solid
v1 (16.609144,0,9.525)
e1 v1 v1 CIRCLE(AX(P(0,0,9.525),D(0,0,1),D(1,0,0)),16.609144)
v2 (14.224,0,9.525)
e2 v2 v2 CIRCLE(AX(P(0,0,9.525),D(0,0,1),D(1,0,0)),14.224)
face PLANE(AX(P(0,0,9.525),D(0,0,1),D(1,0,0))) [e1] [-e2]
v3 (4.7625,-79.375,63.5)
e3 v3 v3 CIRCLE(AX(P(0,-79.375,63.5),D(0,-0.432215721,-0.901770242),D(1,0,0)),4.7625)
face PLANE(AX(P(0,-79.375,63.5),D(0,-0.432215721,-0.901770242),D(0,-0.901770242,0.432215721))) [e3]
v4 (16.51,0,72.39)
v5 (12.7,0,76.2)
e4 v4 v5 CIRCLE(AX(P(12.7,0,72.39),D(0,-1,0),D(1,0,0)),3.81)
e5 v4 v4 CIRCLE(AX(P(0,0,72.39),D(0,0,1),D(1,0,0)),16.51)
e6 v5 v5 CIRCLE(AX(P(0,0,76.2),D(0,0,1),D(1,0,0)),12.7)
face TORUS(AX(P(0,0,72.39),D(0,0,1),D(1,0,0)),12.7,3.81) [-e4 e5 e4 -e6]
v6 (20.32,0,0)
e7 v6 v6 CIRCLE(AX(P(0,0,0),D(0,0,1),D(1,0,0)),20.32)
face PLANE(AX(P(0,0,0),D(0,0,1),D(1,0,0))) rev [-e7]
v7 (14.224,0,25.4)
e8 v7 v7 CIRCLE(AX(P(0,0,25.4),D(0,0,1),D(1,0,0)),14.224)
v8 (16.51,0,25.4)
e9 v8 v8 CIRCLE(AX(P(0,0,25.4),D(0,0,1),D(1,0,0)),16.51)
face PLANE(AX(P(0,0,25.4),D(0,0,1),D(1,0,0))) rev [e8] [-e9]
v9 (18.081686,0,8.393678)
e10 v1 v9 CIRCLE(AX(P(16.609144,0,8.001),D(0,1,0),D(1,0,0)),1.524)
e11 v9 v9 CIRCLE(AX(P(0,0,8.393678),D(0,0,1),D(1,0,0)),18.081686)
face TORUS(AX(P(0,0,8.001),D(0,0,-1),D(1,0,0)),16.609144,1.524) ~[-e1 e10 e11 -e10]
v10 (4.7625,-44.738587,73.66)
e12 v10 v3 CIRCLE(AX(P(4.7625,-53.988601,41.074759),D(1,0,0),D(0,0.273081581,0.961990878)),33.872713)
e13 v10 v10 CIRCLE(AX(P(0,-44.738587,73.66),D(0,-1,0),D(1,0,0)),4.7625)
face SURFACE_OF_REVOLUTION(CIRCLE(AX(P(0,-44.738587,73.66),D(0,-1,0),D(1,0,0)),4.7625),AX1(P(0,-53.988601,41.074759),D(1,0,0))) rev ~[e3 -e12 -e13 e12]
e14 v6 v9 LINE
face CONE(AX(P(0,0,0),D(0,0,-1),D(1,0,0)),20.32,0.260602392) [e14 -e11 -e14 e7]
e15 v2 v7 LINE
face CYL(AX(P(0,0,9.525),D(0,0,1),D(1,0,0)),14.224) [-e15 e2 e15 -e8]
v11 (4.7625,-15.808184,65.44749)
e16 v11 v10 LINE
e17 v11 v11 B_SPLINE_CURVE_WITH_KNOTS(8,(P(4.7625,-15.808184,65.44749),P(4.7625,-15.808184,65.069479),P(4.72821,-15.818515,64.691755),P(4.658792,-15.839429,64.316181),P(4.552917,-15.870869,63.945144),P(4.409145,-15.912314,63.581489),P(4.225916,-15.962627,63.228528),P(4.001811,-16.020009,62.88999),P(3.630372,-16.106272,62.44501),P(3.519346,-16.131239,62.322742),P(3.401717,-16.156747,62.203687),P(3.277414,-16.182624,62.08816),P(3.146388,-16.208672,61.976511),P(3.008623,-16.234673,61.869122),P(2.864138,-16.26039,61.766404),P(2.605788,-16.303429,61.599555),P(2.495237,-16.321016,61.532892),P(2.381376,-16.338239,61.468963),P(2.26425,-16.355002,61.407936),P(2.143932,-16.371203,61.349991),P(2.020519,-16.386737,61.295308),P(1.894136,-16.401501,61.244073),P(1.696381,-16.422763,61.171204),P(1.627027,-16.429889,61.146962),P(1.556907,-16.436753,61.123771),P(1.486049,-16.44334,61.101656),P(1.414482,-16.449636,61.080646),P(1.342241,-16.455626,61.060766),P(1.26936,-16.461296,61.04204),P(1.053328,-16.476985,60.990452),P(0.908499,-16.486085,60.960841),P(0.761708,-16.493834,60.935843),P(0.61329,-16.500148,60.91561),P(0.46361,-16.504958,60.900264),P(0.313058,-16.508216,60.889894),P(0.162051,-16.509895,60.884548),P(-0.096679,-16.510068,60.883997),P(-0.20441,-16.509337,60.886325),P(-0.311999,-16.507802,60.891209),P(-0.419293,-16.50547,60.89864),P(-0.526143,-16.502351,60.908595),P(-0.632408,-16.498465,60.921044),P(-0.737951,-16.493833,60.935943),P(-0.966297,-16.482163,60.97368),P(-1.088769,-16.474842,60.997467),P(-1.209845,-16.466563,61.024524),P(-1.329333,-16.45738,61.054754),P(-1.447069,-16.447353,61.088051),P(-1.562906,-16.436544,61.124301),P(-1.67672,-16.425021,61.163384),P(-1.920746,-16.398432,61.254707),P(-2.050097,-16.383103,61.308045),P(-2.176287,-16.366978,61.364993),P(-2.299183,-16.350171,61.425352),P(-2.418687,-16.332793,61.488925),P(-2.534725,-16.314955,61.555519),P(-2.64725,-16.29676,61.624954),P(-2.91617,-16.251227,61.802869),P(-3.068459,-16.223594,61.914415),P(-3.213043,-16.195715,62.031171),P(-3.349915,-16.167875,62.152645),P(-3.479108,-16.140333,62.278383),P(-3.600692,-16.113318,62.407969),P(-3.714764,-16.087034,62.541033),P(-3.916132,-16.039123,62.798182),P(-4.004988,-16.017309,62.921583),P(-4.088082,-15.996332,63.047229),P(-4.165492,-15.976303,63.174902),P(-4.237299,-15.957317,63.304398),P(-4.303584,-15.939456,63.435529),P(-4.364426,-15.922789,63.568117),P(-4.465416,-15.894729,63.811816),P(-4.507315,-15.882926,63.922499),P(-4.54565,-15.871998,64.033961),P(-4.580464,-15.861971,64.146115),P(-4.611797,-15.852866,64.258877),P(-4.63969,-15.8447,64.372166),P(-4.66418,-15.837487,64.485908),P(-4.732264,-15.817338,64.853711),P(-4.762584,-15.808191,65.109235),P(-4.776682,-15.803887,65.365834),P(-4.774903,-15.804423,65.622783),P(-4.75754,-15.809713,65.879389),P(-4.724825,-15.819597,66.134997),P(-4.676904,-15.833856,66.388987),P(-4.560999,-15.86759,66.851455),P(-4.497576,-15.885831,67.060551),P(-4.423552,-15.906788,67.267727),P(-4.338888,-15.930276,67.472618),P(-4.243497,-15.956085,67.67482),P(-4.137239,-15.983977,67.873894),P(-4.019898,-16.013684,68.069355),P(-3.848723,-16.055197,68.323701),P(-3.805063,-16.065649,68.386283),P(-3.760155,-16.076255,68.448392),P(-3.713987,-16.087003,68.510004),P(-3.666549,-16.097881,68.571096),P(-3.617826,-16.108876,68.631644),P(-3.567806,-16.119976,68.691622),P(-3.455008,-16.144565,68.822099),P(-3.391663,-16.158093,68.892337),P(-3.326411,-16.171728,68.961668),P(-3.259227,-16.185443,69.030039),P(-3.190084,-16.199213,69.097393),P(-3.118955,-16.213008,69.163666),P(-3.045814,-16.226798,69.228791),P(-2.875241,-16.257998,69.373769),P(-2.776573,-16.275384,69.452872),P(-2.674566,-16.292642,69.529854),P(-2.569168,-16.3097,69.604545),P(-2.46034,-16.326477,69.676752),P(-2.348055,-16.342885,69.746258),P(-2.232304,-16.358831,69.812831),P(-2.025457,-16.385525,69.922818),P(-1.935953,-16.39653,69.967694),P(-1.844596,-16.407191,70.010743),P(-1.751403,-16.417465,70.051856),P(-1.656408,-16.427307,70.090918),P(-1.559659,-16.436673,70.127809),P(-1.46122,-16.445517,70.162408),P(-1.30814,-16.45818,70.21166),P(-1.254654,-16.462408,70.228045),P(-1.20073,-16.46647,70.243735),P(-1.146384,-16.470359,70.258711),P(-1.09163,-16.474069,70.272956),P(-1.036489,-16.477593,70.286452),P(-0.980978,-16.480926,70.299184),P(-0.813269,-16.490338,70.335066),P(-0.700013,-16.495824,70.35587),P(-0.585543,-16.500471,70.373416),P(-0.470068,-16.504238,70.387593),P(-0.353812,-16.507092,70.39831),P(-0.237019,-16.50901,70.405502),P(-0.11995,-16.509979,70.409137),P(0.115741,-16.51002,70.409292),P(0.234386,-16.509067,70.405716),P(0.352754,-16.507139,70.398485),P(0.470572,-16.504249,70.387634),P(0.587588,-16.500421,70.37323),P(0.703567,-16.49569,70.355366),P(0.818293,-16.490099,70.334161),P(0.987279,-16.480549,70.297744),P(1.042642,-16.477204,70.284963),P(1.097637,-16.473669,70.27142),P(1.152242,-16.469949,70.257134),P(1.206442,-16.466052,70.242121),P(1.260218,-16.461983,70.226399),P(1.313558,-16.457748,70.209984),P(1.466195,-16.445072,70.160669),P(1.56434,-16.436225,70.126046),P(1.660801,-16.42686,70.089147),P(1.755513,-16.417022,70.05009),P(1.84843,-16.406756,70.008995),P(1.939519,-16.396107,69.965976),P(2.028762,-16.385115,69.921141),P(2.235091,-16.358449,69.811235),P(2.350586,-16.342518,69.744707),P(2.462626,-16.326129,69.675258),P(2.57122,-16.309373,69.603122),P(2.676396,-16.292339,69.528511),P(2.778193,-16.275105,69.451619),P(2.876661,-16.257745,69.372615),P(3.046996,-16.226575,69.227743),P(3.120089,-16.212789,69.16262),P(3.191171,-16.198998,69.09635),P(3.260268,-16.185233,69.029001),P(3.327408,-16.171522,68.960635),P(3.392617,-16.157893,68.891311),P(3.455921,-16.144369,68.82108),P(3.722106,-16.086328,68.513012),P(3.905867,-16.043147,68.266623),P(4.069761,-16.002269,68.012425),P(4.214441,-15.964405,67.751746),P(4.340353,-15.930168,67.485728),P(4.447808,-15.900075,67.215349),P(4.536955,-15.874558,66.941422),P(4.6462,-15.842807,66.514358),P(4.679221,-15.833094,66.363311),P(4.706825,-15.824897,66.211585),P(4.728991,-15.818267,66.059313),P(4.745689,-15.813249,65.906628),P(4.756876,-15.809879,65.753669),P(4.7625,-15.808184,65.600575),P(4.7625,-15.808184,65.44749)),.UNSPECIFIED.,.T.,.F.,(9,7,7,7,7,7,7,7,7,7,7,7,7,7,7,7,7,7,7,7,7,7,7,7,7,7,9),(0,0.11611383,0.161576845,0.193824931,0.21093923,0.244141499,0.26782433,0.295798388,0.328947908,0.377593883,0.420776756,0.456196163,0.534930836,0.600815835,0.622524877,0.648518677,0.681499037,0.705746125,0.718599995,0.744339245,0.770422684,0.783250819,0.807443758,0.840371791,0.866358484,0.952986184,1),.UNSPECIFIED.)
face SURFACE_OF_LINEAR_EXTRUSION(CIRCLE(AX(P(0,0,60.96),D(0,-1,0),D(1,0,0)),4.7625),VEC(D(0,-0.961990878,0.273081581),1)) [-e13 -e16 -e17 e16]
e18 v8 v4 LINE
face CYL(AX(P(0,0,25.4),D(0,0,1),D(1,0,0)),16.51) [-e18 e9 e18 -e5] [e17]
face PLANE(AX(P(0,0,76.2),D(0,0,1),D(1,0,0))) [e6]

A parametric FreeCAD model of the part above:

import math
import FreeCAD as App
import Part
import Sketcher

V = App.Vector
Q = App.Units.Quantity


def edges_at(feature, points):
    """Names of the edges that pass closest to the given points."""
    edges = feature.Shape.Edges
    near = lambda p: min(range(len(edges)), key=lambda i: edges[i].distToShape(Part.Vertex(*p))[0])
    return sorted({f"Edge{near(p) + 1}" for p in points})

doc = App.newDocument("Part")
params = doc.addObject("Spreadsheet::Sheet", "Params")
for row, (alias, value) in enumerate([
    ("sketch1_height", "3 in"),
    ("sketch1_height2", "2 in"),
    ("sketch1_width", "0.8 in"),
    ("sketch1_width2", "0.14 in"),
    ("sketch1_width3", "0.09 in"),
    ("revolution_angle", "360 deg"),
    ("fillet_radius", "0.15 in"),
    ("fillet2_radius", "0.06 in"),
    ("sketch2_diameter", "0.375 in"),
], start=1):
    params.set(f"A{row}", alias)
    params.set(f"B{row}", "=" + value)
    params.setAlias(f"B{row}", alias)

body = doc.addObject("PartDesign::Body", "Body")

sketch1 = doc.addObject("Sketcher::SketchObject", "Sketch")
body.addObject(sketch1)
sketch1.AttachmentSupport = (doc.XZ_Plane, [""])
sketch1.MapMode = "FlatFace"
sketch1.addGeometry(Part.LineSegment(V(0, 76.2, 0), V(0, 0, 0)), False)
sketch1.addGeometry(Part.LineSegment(V(0, 0, 0), V(20.3, 0, 0)), False)
sketch1.addGeometry(Part.LineSegment(V(20.3, 0, 0), V(17.8, 9.5, 0)), False)
sketch1.addGeometry(Part.LineSegment(V(17.8, 9.5, 0), V(14.2, 9.5, 0)), False)
sketch1.addGeometry(Part.LineSegment(V(14.2, 9.5, 0), V(14.2, 25.4, 0)), False)
sketch1.addGeometry(Part.LineSegment(V(14.2, 25.4, 0), V(16.5, 25.4, 0)), False)
sketch1.addGeometry(Part.LineSegment(V(16.5, 25.4, 0), V(16.5, 76.2, 0)), False)
sketch1.addGeometry(Part.LineSegment(V(16.5, 76.2, 0), V(0, 76.2, 0)), False)
sketch1.addConstraint(Sketcher.Constraint("Coincident", 0, 2, 1, 1))
sketch1.addConstraint(Sketcher.Constraint("Coincident", 1, 2, 2, 1))
sketch1.addConstraint(Sketcher.Constraint("Coincident", 2, 2, 3, 1))
sketch1.addConstraint(Sketcher.Constraint("Coincident", 3, 2, 4, 1))
sketch1.addConstraint(Sketcher.Constraint("Coincident", 4, 2, 5, 1))
sketch1.addConstraint(Sketcher.Constraint("Coincident", 5, 2, 6, 1))
sketch1.addConstraint(Sketcher.Constraint("Coincident", 6, 2, 7, 1))
sketch1.addConstraint(Sketcher.Constraint("Coincident", 7, 2, 0, 1))
sketch1.addConstraint(Sketcher.Constraint("Vertical", 0))
sketch1.addConstraint(Sketcher.Constraint("Horizontal", 1))
sketch1.addConstraint(Sketcher.Constraint("Horizontal", 3))
sketch1.addConstraint(Sketcher.Constraint("Vertical", 4))
sketch1.addConstraint(Sketcher.Constraint("Horizontal", 5))
sketch1.addConstraint(Sketcher.Constraint("Vertical", 6))
sketch1.addConstraint(Sketcher.Constraint("Horizontal", 7))
sketch1.addConstraint(Sketcher.Constraint("Coincident", 0, 2, -1, 1))
sketch1.addConstraint(Sketcher.Constraint("DistanceY", 0, 2, 0, 1, Q("3 in")))
sketch1.addConstraint(Sketcher.Constraint("DistanceY", 6, 1, 6, 2, Q("2 in")))
sketch1.addConstraint(Sketcher.Constraint("DistanceX", 1, 1, 1, 2, Q("0.8 in")))
sketch1.addConstraint(Sketcher.Constraint("DistanceX", 3, 2, 3, 1, Q("0.14 in")))
sketch1.addConstraint(Sketcher.Constraint("DistanceX", 5, 1, 5, 2, Q("0.09 in")))
sketch1.addConstraint(Sketcher.Constraint("DistanceX", 7, 2, 7, 1, Q("0.65 in")))
sketch1.addConstraint(Sketcher.Constraint("DistanceY", 4, 1, 4, 2, Q("0.625 in")))
sketch1.setExpression("Constraints[16]", "Params.sketch1_height")
sketch1.setExpression("Constraints[17]", "Params.sketch1_height2")
sketch1.setExpression("Constraints[18]", "Params.sketch1_width")
sketch1.setExpression("Constraints[19]", "Params.sketch1_width2")
sketch1.setExpression("Constraints[20]", "Params.sketch1_width3")
revolution = doc.addObject("PartDesign::Revolution", "Revolution")
body.addObject(revolution)
revolution.Profile = sketch1
revolution.ReferenceAxis = (sketch1, ["V_Axis"])
revolution.setExpression("Angle", "Params.revolution_angle")
doc.recompute()

fillet = doc.addObject("PartDesign::Fillet", "Fillet")
body.addObject(fillet)
fillet.Base = (revolution, edges_at(revolution, [(-16.51, 0, 76.2)]))
fillet.setExpression("Radius", "Params.fillet_radius")
doc.recompute()

fillet2 = doc.addObject("PartDesign::Fillet", "Fillet001")
body.addObject(fillet2)
fillet2.Base = (fillet, edges_at(fillet, [(-17.78, 0, 9.525)]))
fillet2.setExpression("Radius", "Params.fillet2_radius")

sketch2 = doc.addObject("Sketcher::SketchObject", "Sketch001")
body.addObject(sketch2)
sketch2.AttachmentSupport = (doc.XZ_Plane, [""])
sketch2.MapMode = "FlatFace"
sketch2.addGeometry(Part.Circle(V(0, 61, 0), V(0, 0, 1), 4.8), False)
sketch2.addConstraint(Sketcher.Constraint("PointOnObject", 0, 3, -2))
sketch2.addConstraint(Sketcher.Constraint("Diameter", 0, Q("0.375 in")))
sketch2.addConstraint(Sketcher.Constraint("DistanceY", -1, 1, 0, 3, Q("2.4 in")))
sketch2.setExpression("Constraints[1]", "Params.sketch2_diameter")

sketch3 = doc.addObject("Sketcher::SketchObject", "Sketch002")
body.addObject(sketch3)
sketch3.AttachmentSupport = (doc.YZ_Plane, [""])
sketch3.MapMode = "FlatFace"
sketch3.addGeometry(Part.LineSegment(V(0, 61, 0), V(-45, 74, 0)), False)
sketch3.addGeometry(Part.ArcOfCircle(Part.Circle(V(-54, 41, 0), V(0, 0, 1), 34), math.radians(74), math.radians(139)), False)
sketch3.addConstraint(Sketcher.Constraint("Tangent", 0, 2, 1, 1))
sketch3.addConstraint(Sketcher.Constraint("PointOnObject", 0, 1, -2))
sketch3.addConstraint(Sketcher.Constraint("DistanceY", -1, 1, 0, 1, Q("2.4 in")))
sketch3.addConstraint(Sketcher.Constraint("DistanceY", -1, 1, 0, 2, Q("2.9 in")))
sketch3.addConstraint(Sketcher.Constraint("DistanceY", -1, 1, 1, 2, Q("2.5 in")))
sketch3.addConstraint(Sketcher.Constraint("DistanceX", 1, 2, -1, 1, Q("3.125 in")))
sketch3.addConstraint(Sketcher.Constraint("Radius", 1, 33.872713))
doc.recompute()

additivepipe = doc.addObject("PartDesign::AdditivePipe", "AdditivePipe")
body.addObject(additivepipe)
additivepipe.Profile = sketch2
additivepipe.Spine = (sketch3, ["Edge1", "Edge2"])

doc.recompute()
